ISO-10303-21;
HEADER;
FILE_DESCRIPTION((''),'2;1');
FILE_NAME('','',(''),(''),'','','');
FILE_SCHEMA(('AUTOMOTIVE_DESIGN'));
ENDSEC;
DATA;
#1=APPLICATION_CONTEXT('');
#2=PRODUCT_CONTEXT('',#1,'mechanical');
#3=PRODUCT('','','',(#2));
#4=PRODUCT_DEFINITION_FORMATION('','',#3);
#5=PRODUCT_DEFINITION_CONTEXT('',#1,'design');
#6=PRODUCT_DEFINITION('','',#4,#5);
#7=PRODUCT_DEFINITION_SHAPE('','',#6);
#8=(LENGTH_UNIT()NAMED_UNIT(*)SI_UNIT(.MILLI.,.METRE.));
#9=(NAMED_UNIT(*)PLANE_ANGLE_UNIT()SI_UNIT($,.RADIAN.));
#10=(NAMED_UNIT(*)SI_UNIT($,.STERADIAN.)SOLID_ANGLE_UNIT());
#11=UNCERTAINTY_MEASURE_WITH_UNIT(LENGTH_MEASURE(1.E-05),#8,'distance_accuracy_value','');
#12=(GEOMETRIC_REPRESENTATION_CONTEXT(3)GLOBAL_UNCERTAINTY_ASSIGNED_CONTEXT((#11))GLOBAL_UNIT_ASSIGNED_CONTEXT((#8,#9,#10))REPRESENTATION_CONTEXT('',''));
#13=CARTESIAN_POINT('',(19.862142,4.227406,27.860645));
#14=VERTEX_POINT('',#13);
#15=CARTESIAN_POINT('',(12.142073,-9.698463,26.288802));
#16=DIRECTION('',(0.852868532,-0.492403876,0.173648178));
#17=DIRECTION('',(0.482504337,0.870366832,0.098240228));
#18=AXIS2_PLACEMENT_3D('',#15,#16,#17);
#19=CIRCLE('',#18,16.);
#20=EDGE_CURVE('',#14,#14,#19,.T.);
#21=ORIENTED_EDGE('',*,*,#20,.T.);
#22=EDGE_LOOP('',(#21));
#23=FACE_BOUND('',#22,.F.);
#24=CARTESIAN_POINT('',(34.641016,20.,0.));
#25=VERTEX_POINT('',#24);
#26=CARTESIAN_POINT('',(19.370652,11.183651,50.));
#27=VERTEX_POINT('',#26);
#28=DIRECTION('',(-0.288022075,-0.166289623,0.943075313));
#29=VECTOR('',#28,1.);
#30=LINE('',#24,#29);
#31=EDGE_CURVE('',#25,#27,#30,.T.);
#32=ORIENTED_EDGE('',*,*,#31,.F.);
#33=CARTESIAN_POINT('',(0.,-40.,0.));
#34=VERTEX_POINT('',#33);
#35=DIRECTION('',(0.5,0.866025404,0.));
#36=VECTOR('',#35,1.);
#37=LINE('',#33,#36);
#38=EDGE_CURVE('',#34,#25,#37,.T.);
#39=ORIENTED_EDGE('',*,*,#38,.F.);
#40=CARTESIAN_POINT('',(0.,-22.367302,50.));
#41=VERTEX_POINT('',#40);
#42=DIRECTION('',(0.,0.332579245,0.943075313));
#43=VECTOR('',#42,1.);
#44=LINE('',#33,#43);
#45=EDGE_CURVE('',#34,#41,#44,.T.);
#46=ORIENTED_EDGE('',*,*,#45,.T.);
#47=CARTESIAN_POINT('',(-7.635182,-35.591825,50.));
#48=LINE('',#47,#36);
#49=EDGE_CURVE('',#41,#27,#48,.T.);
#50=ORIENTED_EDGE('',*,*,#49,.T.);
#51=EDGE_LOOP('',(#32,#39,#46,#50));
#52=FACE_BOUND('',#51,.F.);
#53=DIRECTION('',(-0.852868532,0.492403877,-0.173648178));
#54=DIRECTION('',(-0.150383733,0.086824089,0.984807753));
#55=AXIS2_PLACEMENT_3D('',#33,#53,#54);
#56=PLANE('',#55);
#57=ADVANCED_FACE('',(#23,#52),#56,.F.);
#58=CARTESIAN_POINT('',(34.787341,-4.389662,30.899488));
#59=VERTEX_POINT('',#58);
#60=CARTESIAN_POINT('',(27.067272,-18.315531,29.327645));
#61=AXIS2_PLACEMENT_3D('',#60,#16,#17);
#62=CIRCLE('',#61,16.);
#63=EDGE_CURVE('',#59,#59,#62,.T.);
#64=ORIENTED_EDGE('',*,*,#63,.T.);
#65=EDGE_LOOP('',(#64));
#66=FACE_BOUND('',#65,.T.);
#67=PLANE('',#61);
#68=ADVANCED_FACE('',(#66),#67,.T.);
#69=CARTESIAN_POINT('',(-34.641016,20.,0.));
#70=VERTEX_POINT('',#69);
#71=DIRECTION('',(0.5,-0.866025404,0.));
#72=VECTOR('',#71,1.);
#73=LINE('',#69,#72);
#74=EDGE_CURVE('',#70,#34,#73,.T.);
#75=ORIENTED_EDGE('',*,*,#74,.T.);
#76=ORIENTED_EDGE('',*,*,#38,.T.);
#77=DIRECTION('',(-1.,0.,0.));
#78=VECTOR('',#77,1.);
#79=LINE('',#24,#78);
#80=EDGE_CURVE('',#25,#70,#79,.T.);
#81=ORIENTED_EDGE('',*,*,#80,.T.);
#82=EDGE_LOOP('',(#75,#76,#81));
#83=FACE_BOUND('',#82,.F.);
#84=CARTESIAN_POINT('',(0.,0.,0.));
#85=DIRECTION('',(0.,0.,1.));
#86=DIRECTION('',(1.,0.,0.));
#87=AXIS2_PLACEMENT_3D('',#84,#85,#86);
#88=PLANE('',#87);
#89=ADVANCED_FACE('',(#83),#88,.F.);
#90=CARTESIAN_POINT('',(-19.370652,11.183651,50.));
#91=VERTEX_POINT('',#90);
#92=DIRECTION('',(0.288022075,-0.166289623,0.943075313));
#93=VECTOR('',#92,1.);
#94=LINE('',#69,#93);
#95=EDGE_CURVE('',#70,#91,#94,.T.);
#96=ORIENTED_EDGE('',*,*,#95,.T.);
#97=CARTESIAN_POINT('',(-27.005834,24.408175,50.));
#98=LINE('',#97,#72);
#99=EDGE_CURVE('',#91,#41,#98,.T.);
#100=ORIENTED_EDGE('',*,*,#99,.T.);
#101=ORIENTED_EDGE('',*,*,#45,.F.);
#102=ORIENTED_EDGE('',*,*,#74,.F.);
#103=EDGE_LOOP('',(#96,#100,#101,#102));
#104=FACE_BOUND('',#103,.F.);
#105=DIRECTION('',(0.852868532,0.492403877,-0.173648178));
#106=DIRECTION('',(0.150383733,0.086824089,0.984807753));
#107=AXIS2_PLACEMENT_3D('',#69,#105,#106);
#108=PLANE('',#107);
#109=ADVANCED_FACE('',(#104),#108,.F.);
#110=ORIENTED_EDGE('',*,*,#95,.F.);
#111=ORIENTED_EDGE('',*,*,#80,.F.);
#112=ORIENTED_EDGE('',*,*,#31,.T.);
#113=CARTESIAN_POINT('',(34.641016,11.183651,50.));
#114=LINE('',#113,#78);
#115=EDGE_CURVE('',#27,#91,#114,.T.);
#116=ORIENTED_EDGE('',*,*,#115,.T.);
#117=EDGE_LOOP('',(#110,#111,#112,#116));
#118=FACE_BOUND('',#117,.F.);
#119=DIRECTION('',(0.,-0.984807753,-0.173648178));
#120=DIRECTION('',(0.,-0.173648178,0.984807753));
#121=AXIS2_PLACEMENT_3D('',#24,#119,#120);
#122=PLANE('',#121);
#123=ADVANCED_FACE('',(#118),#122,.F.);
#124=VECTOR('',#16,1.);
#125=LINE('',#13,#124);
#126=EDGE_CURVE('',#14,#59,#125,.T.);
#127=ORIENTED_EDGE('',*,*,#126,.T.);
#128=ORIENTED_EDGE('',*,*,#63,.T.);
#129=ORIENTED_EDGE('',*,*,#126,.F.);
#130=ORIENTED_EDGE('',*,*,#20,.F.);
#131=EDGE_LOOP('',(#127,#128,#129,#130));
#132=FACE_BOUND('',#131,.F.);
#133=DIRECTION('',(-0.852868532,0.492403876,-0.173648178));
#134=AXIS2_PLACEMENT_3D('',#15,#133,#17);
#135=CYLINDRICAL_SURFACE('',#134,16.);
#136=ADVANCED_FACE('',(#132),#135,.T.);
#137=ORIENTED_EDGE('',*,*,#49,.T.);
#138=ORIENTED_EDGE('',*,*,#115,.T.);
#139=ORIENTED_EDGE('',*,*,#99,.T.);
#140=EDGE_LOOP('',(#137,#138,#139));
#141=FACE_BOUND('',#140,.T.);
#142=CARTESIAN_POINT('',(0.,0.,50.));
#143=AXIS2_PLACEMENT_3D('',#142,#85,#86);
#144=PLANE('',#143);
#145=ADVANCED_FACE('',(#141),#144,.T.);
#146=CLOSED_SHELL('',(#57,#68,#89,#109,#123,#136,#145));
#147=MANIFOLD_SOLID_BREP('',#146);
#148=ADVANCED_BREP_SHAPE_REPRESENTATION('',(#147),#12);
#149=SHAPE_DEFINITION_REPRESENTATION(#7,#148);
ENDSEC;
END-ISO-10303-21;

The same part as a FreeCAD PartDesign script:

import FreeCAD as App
import Part
import Sketcher
Q = App.Units.Quantity

doc = App.newDocument("Part")
body = doc.addObject("PartDesign::Body", "Body")

sketch1 = body.newObject("Sketcher::SketchObject", "Sketch")
sketch1.AttachmentSupport = (doc.getObject("XY_Plane"), [""])
sketch1.MapMode = "FlatFace"
sketch1.addGeometry(Part.LineSegment(App.Vector(34.641016, 20, 0), App.Vector(-34.641016, 20, 0)), False)
sketch1.addGeometry(Part.LineSegment(App.Vector(-34.641016, 20, 0), App.Vector(0, -40, 0)), False)
sketch1.addGeometry(Part.LineSegment(App.Vector(0, -40, 0), App.Vector(34.641016, 20, 0)), False)
sketch1.addConstraint(Sketcher.Constraint("Coincident", 0, 2, 1, 1))
sketch1.addConstraint(Sketcher.Constraint("Coincident", 1, 2, 2, 1))
sketch1.addConstraint(Sketcher.Constraint("Coincident", 2, 2, 0, 1))
sketch1.addConstraint(Sketcher.Constraint("Horizontal", 0))
sketch1.addConstraint(Sketcher.Constraint("PointOnObject", 1, 2, -2))
sketch1.addConstraint(Sketcher.Constraint("Equal", 1, 2))
sketch1.addConstraint(Sketcher.Constraint("Angle", 1, Q("-60 deg")))
sketch1.addConstraint(Sketcher.Constraint("DistanceY", -1, 1, 0, 2, 20.0))
sketch1.addConstraint(Sketcher.Constraint("DistanceY", 1, 2, -1, 1, 40.0))
pad1 = body.newObject("PartDesign::Pad", "Pad")
pad1.Profile = sketch1
pad1.Length = 50
pad1.TaperAngle = -10

sketch2 = body.newObject("Sketcher::SketchObject", "Sketch001")
sketch2.Placement = App.Placement(App.Vector(16.798231, -9.698463, 3.420201), App.Rotation(App.Vector(0.482504337, 0.870366832, 0.098240228), App.Vector(-0.199511484, 0, 0.979895488), App.Vector(0.852868532, -0.492403876, 0.173648178), "ZXY"))
sketch2.addGeometry(Part.Circle(App.Vector(0, 23, 0), App.Vector(0, 0, 1), 16), False)
sketch2.addConstraint(Sketcher.Constraint("PointOnObject", 0, 3, -2))
sketch2.addConstraint(Sketcher.Constraint("Diameter", 0, 32.0))
sketch2.addConstraint(Sketcher.Constraint("DistanceY", -1, 1, 0, 3, 23.337795))
pad2 = body.newObject("PartDesign::Pad", "Pad001")
pad2.Profile = sketch2
pad2.Length = 17.5

doc.recompute()
